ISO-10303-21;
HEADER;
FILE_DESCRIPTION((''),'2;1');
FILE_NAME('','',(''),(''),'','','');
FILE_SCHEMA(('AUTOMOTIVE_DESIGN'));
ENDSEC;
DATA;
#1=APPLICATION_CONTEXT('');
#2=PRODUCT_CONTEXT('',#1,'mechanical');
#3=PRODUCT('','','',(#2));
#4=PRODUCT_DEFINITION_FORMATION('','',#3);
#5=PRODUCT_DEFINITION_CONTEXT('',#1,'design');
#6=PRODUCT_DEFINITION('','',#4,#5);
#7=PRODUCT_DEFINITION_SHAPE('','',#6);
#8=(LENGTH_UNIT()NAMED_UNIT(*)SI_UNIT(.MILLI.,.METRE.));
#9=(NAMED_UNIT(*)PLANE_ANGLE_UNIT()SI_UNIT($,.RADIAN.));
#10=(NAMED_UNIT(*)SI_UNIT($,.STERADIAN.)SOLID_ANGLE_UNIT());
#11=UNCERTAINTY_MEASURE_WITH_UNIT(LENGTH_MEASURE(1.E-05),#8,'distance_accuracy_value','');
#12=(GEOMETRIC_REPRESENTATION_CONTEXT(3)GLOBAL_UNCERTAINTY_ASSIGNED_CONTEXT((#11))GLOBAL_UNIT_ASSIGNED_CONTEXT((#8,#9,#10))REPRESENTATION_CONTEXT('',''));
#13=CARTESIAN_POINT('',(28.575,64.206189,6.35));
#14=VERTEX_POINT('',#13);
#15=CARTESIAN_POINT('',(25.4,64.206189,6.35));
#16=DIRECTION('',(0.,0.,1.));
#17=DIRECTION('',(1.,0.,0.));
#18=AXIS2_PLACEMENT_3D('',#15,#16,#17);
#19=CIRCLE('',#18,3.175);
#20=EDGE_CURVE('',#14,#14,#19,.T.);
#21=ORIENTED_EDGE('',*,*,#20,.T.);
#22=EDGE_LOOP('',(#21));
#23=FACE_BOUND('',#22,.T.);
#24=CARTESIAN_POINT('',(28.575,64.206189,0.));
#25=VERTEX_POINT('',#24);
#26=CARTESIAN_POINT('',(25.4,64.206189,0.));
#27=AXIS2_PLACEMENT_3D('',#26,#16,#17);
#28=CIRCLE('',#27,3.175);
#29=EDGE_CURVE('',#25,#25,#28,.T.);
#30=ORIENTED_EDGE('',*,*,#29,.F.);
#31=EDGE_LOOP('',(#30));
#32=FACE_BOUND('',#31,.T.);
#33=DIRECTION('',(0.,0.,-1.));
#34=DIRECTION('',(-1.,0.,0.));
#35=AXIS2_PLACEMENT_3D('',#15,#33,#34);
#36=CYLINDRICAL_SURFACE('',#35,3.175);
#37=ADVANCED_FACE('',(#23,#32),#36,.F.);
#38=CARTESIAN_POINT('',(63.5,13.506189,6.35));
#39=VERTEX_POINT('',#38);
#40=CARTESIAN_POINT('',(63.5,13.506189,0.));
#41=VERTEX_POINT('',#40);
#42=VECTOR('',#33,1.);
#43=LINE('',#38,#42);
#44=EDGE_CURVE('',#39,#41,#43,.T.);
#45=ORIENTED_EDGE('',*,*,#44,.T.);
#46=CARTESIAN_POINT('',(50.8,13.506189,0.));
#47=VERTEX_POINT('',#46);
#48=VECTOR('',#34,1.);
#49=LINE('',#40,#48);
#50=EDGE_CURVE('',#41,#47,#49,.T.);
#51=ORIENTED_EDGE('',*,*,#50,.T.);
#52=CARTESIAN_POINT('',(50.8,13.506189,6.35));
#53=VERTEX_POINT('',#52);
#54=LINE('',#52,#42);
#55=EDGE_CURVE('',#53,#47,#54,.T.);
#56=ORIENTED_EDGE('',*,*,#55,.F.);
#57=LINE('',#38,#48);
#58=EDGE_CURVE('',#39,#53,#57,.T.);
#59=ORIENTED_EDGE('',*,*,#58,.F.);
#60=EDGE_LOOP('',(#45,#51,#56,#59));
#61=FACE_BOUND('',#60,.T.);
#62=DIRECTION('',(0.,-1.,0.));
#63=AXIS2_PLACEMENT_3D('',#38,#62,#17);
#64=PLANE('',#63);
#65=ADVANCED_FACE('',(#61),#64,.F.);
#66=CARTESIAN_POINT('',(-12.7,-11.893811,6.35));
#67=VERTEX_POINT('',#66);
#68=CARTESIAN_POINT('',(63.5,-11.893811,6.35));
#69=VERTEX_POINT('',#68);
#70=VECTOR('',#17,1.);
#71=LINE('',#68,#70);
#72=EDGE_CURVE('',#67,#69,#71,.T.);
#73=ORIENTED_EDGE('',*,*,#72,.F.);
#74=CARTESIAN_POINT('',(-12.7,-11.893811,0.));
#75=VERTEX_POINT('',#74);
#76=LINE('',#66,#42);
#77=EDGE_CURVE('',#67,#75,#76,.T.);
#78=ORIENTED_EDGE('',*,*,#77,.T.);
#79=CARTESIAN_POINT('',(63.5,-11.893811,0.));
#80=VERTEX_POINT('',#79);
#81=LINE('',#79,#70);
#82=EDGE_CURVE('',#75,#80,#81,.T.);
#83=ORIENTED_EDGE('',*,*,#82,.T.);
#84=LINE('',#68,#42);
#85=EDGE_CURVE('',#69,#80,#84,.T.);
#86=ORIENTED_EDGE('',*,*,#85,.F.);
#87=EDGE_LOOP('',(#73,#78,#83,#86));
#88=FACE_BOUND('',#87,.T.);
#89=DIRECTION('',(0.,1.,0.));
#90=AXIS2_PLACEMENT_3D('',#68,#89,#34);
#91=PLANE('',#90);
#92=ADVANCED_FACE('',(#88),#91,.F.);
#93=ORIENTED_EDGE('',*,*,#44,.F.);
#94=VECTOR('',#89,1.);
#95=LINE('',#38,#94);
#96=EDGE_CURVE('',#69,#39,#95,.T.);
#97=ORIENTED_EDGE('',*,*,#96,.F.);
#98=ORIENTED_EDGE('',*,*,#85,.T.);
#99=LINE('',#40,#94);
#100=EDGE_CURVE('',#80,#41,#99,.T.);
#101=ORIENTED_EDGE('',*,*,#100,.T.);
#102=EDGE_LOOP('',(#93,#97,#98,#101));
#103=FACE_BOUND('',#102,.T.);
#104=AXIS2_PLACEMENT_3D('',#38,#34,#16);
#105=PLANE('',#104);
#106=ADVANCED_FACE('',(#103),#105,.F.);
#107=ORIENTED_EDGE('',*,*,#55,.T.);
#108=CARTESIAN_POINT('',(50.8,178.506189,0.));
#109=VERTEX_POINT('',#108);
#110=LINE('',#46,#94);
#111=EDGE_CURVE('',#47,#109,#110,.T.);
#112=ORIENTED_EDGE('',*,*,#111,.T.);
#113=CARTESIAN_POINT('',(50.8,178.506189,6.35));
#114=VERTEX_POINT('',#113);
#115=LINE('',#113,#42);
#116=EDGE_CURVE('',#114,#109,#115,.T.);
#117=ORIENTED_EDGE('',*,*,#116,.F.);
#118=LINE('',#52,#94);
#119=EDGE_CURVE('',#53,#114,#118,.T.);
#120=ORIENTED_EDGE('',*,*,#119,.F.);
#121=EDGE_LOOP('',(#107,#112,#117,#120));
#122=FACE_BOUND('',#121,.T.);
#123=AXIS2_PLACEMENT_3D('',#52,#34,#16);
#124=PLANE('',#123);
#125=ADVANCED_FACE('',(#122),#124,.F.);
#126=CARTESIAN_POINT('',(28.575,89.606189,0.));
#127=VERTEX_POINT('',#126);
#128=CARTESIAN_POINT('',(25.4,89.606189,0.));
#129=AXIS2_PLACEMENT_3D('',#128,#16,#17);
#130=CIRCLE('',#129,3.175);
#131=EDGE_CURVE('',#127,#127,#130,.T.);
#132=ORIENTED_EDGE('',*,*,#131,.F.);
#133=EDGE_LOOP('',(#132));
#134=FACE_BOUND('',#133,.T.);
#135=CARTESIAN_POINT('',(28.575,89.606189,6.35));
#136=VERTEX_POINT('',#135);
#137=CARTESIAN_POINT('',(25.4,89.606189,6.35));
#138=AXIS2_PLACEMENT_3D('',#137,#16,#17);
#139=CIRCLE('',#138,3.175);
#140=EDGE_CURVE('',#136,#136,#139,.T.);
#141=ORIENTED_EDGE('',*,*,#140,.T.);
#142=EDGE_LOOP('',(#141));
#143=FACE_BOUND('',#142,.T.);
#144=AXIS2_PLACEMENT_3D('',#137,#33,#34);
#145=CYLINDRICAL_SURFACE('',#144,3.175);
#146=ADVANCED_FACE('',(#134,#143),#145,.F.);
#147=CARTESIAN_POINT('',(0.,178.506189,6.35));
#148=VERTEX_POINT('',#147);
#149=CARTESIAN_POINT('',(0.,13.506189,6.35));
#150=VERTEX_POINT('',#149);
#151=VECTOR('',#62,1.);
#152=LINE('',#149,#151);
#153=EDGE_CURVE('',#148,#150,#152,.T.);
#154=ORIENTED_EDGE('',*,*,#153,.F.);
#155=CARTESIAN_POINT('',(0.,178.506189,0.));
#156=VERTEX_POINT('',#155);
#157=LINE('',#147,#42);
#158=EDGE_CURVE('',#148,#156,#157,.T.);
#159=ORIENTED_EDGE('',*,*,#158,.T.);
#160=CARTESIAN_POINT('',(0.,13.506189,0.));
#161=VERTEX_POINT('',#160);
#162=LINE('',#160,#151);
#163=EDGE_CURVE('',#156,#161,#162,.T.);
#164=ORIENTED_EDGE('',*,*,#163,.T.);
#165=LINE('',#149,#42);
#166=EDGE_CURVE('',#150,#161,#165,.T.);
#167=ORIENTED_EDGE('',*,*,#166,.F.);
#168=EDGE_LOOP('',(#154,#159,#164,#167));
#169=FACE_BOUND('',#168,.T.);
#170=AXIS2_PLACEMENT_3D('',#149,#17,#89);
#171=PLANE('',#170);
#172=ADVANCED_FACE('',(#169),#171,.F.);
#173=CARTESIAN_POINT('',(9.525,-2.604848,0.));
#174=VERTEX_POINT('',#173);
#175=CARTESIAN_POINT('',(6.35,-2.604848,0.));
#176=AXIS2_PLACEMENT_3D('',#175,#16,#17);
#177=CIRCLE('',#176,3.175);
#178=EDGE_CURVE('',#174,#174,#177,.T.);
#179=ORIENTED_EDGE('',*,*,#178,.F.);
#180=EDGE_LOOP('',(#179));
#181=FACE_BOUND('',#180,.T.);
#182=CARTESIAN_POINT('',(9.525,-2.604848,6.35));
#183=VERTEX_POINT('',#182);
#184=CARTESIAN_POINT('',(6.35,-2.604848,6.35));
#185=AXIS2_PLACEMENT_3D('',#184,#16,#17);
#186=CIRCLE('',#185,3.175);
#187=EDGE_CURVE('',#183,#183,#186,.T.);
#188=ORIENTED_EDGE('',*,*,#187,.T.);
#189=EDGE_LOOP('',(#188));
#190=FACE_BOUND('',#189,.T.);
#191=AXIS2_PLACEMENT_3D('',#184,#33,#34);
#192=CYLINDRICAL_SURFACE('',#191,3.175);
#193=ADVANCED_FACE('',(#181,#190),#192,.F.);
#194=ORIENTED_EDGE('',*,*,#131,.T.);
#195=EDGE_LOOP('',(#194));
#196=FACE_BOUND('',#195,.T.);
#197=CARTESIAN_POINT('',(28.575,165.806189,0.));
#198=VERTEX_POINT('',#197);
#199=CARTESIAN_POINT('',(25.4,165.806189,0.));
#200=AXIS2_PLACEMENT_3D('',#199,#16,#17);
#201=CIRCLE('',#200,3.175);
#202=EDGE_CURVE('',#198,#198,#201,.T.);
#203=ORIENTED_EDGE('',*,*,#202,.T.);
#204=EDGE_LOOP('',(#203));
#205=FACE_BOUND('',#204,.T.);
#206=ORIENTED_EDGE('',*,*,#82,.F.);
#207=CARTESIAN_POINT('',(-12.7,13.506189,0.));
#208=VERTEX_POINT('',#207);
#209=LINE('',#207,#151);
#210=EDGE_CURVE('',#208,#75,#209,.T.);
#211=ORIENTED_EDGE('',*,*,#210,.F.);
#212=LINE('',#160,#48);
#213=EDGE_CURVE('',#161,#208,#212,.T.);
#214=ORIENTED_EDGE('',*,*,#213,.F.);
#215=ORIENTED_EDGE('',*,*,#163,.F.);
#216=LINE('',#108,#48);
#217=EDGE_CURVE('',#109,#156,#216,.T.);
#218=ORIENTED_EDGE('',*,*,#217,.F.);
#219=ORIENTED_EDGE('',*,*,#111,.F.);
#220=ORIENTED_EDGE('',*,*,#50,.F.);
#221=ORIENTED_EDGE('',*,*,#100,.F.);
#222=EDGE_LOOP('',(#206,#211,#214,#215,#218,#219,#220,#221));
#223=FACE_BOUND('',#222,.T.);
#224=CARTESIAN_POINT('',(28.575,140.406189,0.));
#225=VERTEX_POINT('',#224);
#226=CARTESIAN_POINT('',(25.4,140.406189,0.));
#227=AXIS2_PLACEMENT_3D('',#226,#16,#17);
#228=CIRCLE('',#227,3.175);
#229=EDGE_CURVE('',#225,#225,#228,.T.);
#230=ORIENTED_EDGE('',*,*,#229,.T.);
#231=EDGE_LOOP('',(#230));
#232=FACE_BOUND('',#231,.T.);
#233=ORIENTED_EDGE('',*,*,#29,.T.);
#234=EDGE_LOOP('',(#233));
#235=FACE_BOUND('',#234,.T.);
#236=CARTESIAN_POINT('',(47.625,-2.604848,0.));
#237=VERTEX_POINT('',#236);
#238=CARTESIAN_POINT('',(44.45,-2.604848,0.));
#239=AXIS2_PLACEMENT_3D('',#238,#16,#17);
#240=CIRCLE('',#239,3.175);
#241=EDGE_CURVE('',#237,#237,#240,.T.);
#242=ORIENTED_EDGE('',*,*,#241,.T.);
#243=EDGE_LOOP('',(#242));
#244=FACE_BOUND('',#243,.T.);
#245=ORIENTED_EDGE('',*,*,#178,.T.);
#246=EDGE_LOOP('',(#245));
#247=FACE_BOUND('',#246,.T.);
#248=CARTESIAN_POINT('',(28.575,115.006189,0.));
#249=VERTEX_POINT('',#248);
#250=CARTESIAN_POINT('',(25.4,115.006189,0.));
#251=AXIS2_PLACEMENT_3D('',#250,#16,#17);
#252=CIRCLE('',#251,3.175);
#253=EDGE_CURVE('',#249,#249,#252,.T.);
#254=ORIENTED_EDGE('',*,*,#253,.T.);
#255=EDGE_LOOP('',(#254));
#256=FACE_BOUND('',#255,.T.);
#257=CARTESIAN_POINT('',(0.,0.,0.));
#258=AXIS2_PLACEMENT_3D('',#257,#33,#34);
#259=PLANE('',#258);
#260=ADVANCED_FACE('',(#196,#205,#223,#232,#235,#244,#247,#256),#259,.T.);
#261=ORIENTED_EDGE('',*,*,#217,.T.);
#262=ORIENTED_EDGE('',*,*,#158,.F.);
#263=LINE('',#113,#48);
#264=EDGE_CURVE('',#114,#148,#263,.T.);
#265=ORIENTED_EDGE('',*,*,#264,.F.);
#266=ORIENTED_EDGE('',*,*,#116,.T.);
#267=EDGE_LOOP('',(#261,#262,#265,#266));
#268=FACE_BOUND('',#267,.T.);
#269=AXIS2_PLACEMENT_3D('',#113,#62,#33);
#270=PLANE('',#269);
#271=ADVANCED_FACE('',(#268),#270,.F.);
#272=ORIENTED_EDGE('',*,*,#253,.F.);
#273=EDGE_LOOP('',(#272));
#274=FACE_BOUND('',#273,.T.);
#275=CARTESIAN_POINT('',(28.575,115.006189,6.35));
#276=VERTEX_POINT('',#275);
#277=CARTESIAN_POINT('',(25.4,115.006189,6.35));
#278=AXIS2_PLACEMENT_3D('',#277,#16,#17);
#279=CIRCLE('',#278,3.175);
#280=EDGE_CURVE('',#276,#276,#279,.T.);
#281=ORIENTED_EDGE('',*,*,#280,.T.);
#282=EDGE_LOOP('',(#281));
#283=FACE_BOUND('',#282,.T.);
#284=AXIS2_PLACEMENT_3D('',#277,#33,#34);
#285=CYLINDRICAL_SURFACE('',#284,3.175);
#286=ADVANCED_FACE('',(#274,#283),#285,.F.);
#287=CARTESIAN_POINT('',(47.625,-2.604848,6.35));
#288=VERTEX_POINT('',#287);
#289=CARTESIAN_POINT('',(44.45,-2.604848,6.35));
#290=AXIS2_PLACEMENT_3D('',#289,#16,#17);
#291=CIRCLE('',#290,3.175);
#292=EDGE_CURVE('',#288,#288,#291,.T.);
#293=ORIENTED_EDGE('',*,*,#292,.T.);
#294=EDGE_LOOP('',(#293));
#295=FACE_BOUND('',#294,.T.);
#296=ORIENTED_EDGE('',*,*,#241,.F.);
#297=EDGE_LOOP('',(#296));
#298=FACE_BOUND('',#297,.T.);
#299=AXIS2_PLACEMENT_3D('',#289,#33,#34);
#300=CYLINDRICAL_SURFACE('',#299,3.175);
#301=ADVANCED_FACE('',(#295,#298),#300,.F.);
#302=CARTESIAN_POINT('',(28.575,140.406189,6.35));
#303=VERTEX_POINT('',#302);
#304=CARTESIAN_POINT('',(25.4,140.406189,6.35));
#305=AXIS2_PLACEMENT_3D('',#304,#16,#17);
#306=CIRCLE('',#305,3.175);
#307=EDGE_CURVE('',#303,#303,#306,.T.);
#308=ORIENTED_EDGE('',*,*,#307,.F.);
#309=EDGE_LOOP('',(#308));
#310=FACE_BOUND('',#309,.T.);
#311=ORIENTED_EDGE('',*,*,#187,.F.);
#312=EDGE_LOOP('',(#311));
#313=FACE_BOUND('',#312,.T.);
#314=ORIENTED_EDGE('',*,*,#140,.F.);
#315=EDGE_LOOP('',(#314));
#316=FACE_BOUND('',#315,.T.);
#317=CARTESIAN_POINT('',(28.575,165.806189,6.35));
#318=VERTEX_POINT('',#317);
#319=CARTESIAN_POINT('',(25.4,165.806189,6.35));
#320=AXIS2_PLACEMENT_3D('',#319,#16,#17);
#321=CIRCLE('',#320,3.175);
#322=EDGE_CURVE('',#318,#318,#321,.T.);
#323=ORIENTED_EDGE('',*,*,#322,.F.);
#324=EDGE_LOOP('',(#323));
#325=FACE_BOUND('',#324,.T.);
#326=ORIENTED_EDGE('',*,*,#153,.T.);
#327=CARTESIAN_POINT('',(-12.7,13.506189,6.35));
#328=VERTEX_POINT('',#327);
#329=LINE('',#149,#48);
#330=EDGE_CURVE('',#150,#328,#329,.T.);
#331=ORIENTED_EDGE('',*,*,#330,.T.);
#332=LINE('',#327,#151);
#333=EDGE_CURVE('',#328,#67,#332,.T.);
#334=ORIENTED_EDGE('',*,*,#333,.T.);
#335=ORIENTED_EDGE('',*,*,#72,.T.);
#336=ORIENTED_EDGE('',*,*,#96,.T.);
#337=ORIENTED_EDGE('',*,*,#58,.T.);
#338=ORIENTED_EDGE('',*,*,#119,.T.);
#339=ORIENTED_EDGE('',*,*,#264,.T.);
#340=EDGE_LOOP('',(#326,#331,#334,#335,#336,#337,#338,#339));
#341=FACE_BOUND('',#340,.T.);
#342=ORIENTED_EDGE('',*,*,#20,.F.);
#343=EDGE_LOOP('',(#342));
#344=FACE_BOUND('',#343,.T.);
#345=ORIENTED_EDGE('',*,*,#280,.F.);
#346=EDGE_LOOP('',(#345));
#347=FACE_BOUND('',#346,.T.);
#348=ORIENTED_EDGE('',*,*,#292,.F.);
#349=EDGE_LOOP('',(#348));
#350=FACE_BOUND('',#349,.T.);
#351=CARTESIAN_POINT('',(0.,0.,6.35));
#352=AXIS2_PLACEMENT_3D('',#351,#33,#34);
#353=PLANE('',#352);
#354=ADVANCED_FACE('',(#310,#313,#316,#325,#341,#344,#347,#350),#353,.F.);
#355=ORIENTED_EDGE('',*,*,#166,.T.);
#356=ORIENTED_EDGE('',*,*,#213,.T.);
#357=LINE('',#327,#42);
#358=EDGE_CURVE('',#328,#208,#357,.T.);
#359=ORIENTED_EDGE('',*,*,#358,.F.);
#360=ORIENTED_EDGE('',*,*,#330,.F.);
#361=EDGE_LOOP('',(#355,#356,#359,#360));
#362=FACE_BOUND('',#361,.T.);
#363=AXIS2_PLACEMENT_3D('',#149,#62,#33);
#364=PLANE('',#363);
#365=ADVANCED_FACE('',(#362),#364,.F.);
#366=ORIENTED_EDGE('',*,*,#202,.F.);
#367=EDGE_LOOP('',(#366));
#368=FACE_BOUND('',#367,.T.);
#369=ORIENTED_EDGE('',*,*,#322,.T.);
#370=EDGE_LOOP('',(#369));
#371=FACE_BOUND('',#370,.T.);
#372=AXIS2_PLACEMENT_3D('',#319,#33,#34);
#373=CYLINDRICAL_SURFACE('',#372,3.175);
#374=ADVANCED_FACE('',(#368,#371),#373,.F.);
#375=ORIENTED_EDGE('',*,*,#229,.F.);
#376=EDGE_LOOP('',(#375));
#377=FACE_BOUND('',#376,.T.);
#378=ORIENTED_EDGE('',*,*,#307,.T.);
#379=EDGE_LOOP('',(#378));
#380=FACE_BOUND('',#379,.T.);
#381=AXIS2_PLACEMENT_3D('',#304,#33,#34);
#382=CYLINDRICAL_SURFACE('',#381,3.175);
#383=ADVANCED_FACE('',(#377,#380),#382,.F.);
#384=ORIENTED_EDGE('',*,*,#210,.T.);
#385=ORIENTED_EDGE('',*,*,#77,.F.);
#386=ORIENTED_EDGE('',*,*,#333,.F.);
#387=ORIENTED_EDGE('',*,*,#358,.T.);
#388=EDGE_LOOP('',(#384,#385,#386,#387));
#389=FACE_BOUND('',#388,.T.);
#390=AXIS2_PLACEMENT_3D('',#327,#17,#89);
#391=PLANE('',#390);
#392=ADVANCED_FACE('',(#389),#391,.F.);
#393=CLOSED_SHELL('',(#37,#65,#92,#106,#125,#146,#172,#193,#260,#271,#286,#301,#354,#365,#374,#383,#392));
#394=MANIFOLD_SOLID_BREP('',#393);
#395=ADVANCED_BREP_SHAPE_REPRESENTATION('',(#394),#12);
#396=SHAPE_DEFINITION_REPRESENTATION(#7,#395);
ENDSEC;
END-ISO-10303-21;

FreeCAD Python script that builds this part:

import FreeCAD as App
import Part
import Sketcher

V = App.Vector
Q = App.Units.Quantity

doc = App.newDocument("Part")
body = doc.addObject("PartDesign::Body", "Body")

sketch1 = body.newObject("Sketcher::SketchObject", "Sketch")
sketch1.AttachmentSupport = (doc.getObject("XY_Plane"), [""])
sketch1.MapMode = "FlatFace"
sketch1.addGeometry(Part.LineSegment(V(0, 178.5, 0), V(0, 13.5, 0)), False)
sketch1.addGeometry(Part.LineSegment(V(0, 13.5, 0), V(-12.7, 13.5, 0)), False)
sketch1.addGeometry(Part.LineSegment(V(-12.7, 13.5, 0), V(-12.7, -11.9, 0)), False)
sketch1.addGeometry(Part.LineSegment(V(-12.7, -11.9, 0), V(63.5, -11.9, 0)), False)
sketch1.addGeometry(Part.LineSegment(V(63.5, -11.9, 0), V(63.5, 13.5, 0)), False)
sketch1.addGeometry(Part.LineSegment(V(63.5, 13.5, 0), V(50.8, 13.5, 0)), False)
sketch1.addGeometry(Part.LineSegment(V(50.8, 13.5, 0), V(50.8, 178.5, 0)), False)
sketch1.addGeometry(Part.LineSegment(V(50.8, 178.5, 0), V(0, 178.5, 0)), False)
sketch1.addGeometry(Part.Circle(V(44.5, -2.6, 0), V(0, 0, 1), 3.2), False)
sketch1.addGeometry(Part.Circle(V(6.3, -2.6, 0), V(0, 0, 1), 3.2), False)
sketch1.addGeometry(Part.Circle(V(25.4, 64.2, 0), V(0, 0, 1), 3.2), False)
sketch1.addGeometry(Part.Circle(V(25.4, 89.6, 0), V(0, 0, 1), 3.2), False)
sketch1.addGeometry(Part.Circle(V(25.4, 115, 0), V(0, 0, 1), 3.2), False)
sketch1.addGeometry(Part.Circle(V(25.4, 140.4, 0), V(0, 0, 1), 3.2), False)
sketch1.addGeometry(Part.Circle(V(25.4, 165.8, 0), V(0, 0, 1), 3.2), False)
sketch1.addConstraint(Sketcher.Constraint("Coincident", 0, 2, 1, 1))
sketch1.addConstraint(Sketcher.Constraint("Coincident", 1, 2, 2, 1))
sketch1.addConstraint(Sketcher.Constraint("Coincident", 2, 2, 3, 1))
sketch1.addConstraint(Sketcher.Constraint("Coincident", 3, 2, 4, 1))
sketch1.addConstraint(Sketcher.Constraint("Coincident", 4, 2, 5, 1))
sketch1.addConstraint(Sketcher.Constraint("Coincident", 5, 2, 6, 1))
sketch1.addConstraint(Sketcher.Constraint("Coincident", 6, 2, 7, 1))
sketch1.addConstraint(Sketcher.Constraint("Coincident", 7, 2, 0, 1))
sketch1.addConstraint(Sketcher.Constraint("Vertical", 0))
sketch1.addConstraint(Sketcher.Constraint("Horizontal", 1))
sketch1.addConstraint(Sketcher.Constraint("Vertical", 2))
sketch1.addConstraint(Sketcher.Constraint("Horizontal", 3))
sketch1.addConstraint(Sketcher.Constraint("Vertical", 4))
sketch1.addConstraint(Sketcher.Constraint("Horizontal", 5))
sketch1.addConstraint(Sketcher.Constraint("Vertical", 6))
sketch1.addConstraint(Sketcher.Constraint("Horizontal", 7))
sketch1.addConstraint(Sketcher.Constraint("Equal", 8, 9))
sketch1.addConstraint(Sketcher.Constraint("Equal", 9, 10))
sketch1.addConstraint(Sketcher.Constraint("Equal", 10, 11))
sketch1.addConstraint(Sketcher.Constraint("Equal", 11, 12))
sketch1.addConstraint(Sketcher.Constraint("Equal", 12, 13))
sketch1.addConstraint(Sketcher.Constraint("Equal", 13, 14))
sketch1.addConstraint(Sketcher.Constraint("PointOnObject", 0, 2, -2))
sketch1.addConstraint(Sketcher.Constraint("Horizontal", 8, 3, 9, 3))
sketch1.addConstraint(Sketcher.Constraint("Horizontal", 1, 2, 4, 2))
sketch1.addConstraint(Sketcher.Constraint("Vertical", 10, 3, 11, 3))
sketch1.addConstraint(Sketcher.Constraint("Vertical", 11, 3, 12, 3))
sketch1.addConstraint(Sketcher.Constraint("Vertical", 12, 3, 13, 3))
sketch1.addConstraint(Sketcher.Constraint("Vertical", 13, 3, 14, 3))
sketch1.addConstraint(Sketcher.Constraint("Equal", 1, 5))
sketch1.addConstraint(Sketcher.Constraint("Diameter", 8, Q("0.25 in")))
sketch1.addConstraint(Sketcher.Constraint("DistanceX", 3, 1, 3, 2, Q("3 in")))
sketch1.addConstraint(Sketcher.Constraint("DistanceX", 7, 2, 7, 1, Q("2 in")))
sketch1.addConstraint(Sketcher.Constraint("DistanceY", 2, 2, 2, 1, Q("1 in")))
sketch1.addConstraint(Sketcher.Constraint("DistanceX", -1, 1, 10, 3, Q("1 in")))
sketch1.addConstraint(Sketcher.Constraint("DistanceY", 10, 3, 11, 3, Q("1 in")))
sketch1.addConstraint(Sketcher.Constraint("DistanceY", 11, 3, 12, 3, Q("1 in")))
sketch1.addConstraint(Sketcher.Constraint("DistanceY", 12, 3, 13, 3, Q("1 in")))
sketch1.addConstraint(Sketcher.Constraint("DistanceY", 13, 3, 14, 3, Q("1 in")))
sketch1.addConstraint(Sketcher.Constraint("DistanceX", 9, 3, 8, 3, Q("1.5 in")))
sketch1.addConstraint(Sketcher.Constraint("DistanceY", 14, 3, 6, 2, Q("0.5 in")))
sketch1.addConstraint(Sketcher.Constraint("DistanceX", -1, 1, 8, 3, Q("1.75 in")))
sketch1.addConstraint(Sketcher.Constraint("DistanceY", 0, 2, 0, 1, Q("165 mm")))
sketch1.addConstraint(Sketcher.Constraint("DistanceY", -1, 1, 10, 3, Q("64.206189 mm")))
sketch1.addConstraint(Sketcher.Constraint("DistanceY", 8, 3, -1, 1, Q("2.604848 mm")))
pad1 = body.newObject("PartDesign::Pad", "Pad")
pad1.Profile = sketch1
pad1.Length = Q("0.25 in")

doc.recompute()
